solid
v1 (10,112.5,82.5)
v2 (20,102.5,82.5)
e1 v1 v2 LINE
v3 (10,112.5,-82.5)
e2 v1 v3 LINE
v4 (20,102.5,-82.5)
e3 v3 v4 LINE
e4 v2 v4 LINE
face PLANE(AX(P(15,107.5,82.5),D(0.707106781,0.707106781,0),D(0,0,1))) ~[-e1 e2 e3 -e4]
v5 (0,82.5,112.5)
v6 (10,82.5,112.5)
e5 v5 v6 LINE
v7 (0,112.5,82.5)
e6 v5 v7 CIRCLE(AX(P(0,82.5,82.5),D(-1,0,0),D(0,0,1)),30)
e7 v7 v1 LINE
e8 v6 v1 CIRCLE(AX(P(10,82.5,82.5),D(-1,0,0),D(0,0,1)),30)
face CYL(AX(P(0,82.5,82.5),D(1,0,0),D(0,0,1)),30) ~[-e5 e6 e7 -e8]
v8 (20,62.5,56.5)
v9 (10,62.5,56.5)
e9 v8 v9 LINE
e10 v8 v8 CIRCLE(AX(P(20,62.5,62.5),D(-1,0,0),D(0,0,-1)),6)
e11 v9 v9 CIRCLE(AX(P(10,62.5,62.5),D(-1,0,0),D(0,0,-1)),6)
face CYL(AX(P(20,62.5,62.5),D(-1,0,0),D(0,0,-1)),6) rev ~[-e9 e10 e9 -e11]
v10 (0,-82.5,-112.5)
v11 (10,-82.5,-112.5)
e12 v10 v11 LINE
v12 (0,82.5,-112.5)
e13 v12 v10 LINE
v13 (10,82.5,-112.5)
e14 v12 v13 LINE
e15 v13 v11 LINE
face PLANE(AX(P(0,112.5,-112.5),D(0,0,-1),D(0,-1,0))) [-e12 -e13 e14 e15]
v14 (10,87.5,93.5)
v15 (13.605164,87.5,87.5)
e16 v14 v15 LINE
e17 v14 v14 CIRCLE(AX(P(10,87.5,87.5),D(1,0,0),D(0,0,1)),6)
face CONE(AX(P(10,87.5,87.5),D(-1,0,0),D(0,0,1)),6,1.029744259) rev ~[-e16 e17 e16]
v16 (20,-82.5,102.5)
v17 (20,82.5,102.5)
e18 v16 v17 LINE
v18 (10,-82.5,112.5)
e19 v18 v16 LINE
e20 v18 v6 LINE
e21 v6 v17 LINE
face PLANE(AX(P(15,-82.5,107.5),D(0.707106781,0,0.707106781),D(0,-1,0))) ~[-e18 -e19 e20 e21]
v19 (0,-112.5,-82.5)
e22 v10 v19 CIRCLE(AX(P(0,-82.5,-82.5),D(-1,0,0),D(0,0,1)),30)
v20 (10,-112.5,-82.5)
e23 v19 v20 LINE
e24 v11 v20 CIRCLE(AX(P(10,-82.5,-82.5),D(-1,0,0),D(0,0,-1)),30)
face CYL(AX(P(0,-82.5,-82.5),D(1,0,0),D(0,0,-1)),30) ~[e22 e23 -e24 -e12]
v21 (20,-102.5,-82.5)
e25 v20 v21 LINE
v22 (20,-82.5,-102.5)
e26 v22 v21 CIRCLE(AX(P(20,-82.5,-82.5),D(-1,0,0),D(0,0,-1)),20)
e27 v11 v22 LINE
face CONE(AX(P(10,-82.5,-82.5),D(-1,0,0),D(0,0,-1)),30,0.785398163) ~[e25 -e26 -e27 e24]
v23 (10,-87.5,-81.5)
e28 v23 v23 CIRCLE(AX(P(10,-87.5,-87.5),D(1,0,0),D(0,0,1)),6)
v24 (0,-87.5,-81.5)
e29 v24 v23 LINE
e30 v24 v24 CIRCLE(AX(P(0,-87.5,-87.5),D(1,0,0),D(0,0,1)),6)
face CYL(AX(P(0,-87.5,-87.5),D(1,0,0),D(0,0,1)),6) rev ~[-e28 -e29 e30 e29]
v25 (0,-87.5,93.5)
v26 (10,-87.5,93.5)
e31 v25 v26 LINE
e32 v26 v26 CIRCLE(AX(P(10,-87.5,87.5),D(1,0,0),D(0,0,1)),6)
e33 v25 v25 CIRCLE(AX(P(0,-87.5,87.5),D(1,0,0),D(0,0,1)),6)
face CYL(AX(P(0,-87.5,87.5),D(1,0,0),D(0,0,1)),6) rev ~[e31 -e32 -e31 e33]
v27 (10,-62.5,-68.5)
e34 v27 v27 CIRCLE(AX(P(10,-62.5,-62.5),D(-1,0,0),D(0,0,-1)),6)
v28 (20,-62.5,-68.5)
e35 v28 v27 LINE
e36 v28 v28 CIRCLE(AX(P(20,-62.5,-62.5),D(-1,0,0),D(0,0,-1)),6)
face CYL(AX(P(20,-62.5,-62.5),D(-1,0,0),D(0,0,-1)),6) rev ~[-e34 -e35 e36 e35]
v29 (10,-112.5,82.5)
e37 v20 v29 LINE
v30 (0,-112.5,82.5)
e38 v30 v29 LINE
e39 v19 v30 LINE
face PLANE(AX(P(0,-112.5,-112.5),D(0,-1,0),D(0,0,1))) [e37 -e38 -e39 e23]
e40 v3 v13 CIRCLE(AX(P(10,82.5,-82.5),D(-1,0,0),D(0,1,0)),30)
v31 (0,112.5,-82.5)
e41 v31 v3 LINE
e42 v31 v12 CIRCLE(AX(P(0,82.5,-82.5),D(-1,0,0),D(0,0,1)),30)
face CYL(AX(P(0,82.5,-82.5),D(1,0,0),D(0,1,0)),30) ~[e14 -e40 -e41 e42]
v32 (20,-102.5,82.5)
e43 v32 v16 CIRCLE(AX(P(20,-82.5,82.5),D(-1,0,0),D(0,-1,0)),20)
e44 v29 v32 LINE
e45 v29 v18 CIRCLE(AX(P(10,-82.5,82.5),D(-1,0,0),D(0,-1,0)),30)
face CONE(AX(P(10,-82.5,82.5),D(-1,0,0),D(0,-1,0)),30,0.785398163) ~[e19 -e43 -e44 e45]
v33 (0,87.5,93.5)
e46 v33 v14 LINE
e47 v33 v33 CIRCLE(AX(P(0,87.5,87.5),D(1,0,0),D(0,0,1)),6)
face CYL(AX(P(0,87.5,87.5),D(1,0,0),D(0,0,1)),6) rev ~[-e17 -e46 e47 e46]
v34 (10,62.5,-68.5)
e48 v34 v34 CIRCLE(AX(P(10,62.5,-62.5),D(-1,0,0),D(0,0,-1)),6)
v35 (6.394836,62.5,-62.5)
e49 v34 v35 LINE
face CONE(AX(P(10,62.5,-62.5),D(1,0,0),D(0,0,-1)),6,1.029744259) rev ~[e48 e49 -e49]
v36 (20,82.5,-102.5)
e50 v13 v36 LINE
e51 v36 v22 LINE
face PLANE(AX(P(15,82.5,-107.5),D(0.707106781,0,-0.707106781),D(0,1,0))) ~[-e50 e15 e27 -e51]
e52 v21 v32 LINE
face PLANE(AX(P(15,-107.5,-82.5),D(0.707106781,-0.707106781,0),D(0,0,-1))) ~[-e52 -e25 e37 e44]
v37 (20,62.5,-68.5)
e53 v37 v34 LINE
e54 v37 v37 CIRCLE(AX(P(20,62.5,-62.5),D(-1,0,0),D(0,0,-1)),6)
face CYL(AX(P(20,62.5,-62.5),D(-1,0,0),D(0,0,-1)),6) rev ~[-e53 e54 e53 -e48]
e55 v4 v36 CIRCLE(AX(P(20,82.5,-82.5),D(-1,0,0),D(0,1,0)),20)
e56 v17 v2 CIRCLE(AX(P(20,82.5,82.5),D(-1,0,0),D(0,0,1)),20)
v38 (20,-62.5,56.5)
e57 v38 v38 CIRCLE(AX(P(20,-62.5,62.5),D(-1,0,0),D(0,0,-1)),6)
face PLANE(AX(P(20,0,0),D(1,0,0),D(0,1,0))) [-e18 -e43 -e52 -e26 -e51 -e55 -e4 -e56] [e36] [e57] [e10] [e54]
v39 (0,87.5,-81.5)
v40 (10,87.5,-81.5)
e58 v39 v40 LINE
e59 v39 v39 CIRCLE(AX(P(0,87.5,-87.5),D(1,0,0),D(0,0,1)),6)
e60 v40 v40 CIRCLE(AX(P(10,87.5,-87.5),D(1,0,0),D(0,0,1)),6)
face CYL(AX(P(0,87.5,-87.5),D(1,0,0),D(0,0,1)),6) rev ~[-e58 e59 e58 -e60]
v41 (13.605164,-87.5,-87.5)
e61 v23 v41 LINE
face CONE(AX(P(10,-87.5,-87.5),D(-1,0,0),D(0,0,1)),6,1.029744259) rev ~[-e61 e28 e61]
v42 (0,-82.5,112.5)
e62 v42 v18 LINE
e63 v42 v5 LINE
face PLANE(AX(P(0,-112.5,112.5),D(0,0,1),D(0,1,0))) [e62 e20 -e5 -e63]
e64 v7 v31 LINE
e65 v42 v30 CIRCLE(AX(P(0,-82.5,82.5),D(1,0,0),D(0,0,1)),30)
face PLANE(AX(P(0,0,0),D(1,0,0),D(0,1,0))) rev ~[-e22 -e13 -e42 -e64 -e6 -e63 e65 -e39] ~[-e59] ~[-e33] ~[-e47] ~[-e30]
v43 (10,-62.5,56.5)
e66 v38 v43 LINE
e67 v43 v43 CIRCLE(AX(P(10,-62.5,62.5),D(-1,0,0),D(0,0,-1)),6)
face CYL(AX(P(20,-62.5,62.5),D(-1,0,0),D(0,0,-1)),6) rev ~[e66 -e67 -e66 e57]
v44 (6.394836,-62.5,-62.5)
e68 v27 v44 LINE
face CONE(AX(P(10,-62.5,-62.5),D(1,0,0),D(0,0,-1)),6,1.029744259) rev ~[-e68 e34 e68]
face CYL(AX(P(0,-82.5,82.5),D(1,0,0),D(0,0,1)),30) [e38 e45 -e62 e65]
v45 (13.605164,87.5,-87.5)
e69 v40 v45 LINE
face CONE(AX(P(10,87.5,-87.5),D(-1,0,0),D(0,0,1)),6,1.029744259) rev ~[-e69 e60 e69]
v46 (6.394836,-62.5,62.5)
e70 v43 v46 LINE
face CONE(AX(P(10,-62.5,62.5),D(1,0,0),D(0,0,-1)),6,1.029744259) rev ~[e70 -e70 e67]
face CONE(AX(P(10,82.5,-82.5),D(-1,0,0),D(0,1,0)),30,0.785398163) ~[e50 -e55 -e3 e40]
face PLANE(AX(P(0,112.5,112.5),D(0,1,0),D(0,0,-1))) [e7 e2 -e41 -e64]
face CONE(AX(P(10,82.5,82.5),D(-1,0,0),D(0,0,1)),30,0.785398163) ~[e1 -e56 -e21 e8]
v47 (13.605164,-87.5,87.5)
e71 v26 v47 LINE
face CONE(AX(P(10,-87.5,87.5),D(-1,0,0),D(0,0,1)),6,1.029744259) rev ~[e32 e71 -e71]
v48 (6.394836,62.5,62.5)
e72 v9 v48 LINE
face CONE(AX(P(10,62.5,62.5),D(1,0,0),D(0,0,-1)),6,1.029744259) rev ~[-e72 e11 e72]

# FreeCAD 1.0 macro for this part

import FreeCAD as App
import Part
import Sketcher
Q = App.Units.Quantity


def edges_at(feature, points):
    """Names of the edges that pass closest to the given points."""
    edges = feature.Shape.Edges
    near = lambda p: min(range(len(edges)), key=lambda i: edges[i].distToShape(Part.Vertex(*p))[0])
    return sorted({f"Edge{near(p) + 1}" for p in points})


def add_polygon(sketch, points):
    """Adds a closed chain of lines whose ends are joined by coincident constraints."""
    first, n = sketch.GeometryCount, len(points)
    for a, b in zip(points, points[1:] + points[:1]):
        sketch.addGeometry(Part.LineSegment(App.Vector(*a, 0), App.Vector(*b, 0)), False)
    for i in range(n):
        sketch.addConstraint(Sketcher.Constraint("Coincident", first + i, 2, first + (i + 1) % n, 1))

doc = App.newDocument("Part")
body = doc.addObject("PartDesign::Body", "Body")

# Sketch on YZ plane
sketch1 = doc.addObject("Sketcher::SketchObject", "Sketch")
body.addObject(sketch1)
sketch1.AttachmentSupport = (doc.YZ_Plane, [""])
sketch1.MapMode = "FlatFace"
add_polygon(sketch1, [(112.5, 112.5), (-112.5, 112.5), (-112.5, -112.5), (112.5, -112.5)])  # lines 0-3
sketch1.addConstraint(Sketcher.Constraint("Horizontal", 0))
sketch1.addConstraint(Sketcher.Constraint("Vertical", 1))
sketch1.addConstraint(Sketcher.Constraint("Horizontal", 2))
sketch1.addConstraint(Sketcher.Constraint("Vertical", 3))
sketch1.addConstraint(Sketcher.Constraint("Symmetric", 0, 2, 2, 2, -1, 1))
sketch1.addConstraint(Sketcher.Constraint("Equal", 2, 1))
sketch1.addConstraint(Sketcher.Constraint("DistanceX", 0, 2, 0, 1, Q("225 mm")))
pad1 = doc.addObject("PartDesign::Pad", "Pad")
body.addObject(pad1)
pad1.Profile = sketch1
pad1.Length = 20
doc.recompute()

fillet = doc.addObject("PartDesign::Fillet", "Fillet")
body.addObject(fillet)
fillet.Base = (pad1, edges_at(pad1, [
    (10, 112.5, 112.5),
    (10, -112.5, 112.5),
    (10, 112.5, -112.5),
    (10, -112.5, -112.5),
]))
fillet.Radius = 30
doc.recompute()

chamfer = doc.addObject("PartDesign::Chamfer", "Chamfer")
body.addObject(chamfer)
chamfer.Base = (fillet, edges_at(fillet, [
    (20, 0, 112.5),
    (20, -103.713, 103.713),
    (20, -112.5, 0),
    (20, -103.713, -103.713),
    (20, 0, -112.5),
    (20, 103.713, -103.713),
    (20, 112.5, 0),
    (20, 103.713, 103.713),
]))
chamfer.Size = 10

# Sketch on YZ plane
sketch2 = doc.addObject("Sketcher::SketchObject", "Sketch001")
body.addObject(sketch2)
sketch2.AttachmentSupport = (doc.YZ_Plane, [""])
sketch2.MapMode = "FlatFace"
sketch2.AttachmentOffset = App.Placement(App.Vector(0, 0, 20), App.Rotation())
sketch2.addGeometry(Part.Circle(App.Vector(62.5, 62.5, 0), App.Vector(0, 0, 1), 6), False)
sketch2.addGeometry(Part.Circle(App.Vector(62.5, -62.5, 0), App.Vector(0, 0, 1), 6), False)
sketch2.addGeometry(Part.Circle(App.Vector(-62.5, 62.5, 0), App.Vector(0, 0, 1), 6), False)
sketch2.addGeometry(Part.Circle(App.Vector(-62.5, -62.5, 0), App.Vector(0, 0, 1), 6), False)
sketch2.addConstraint(Sketcher.Constraint("Equal", 0, 1))
sketch2.addConstraint(Sketcher.Constraint("Equal", 1, 2))
sketch2.addConstraint(Sketcher.Constraint("Equal", 2, 3))
sketch2.addConstraint(Sketcher.Constraint("Symmetric", 1, 3, 2, 3, -1, 1))
sketch2.addConstraint(Sketcher.Constraint("Symmetric", 0, 3, 3, 3, -1, 1))
sketch2.addConstraint(Sketcher.Constraint("Symmetric", 0, 3, 2, 3, -2))
sketch2.addConstraint(Sketcher.Constraint("Diameter", 0, Q("12 mm")))
sketch2.addConstraint(Sketcher.Constraint("DistanceY", 1, 3, 0, 3, Q("125 mm")))
sketch2.addConstraint(Sketcher.Constraint("DistanceX", 2, 3, 0, 3, Q("125 mm")))
doc.recompute()
hole = doc.addObject("PartDesign::Hole", "Hole")
body.addObject(hole)
hole.Profile = sketch2
hole.ThreadType = "None"
hole.Diameter = 12
hole.DepthType = "Dimension"
hole.Depth = 10
hole.DrillPoint = "Angled"
hole.DrillPointAngle = 118

# Sketch on YZ plane
sketch3 = doc.addObject("Sketcher::SketchObject", "Sketch002")
body.addObject(sketch3)
sketch3.AttachmentSupport = (doc.YZ_Plane, [""])
sketch3.MapMode = "FlatFace"
sketch3.addGeometry(Part.Circle(App.Vector(-87.5, 87.5, 0), App.Vector(0, 0, 1), 6), False)
sketch3.addGeometry(Part.Circle(App.Vector(-87.5, -87.5, 0), App.Vector(0, 0, 1), 6), False)
sketch3.addGeometry(Part.Circle(App.Vector(87.5, -87.5, 0), App.Vector(0, 0, 1), 6), False)
sketch3.addGeometry(Part.Circle(App.Vector(87.5, 87.5, 0), App.Vector(0, 0, 1), 6), False)
sketch3.addConstraint(Sketcher.Constraint("Equal", 0, 1))
sketch3.addConstraint(Sketcher.Constraint("Equal", 1, 2))
sketch3.addConstraint(Sketcher.Constraint("Equal", 2, 3))
sketch3.addConstraint(Sketcher.Constraint("Symmetric", 0, 3, 2, 3, -1, 1))
sketch3.addConstraint(Sketcher.Constraint("Symmetric", 1, 3, 3, 3, -1, 1))
sketch3.addConstraint(Sketcher.Constraint("Symmetric", 1, 3, 2, 3, -2))
sketch3.addConstraint(Sketcher.Constraint("Diameter", 0, Q("12 mm")))
sketch3.addConstraint(Sketcher.Constraint("DistanceY", 1, 3, 0, 3, Q("175 mm")))
sketch3.addConstraint(Sketcher.Constraint("DistanceX", 1, 3, 2, 3, Q("175 mm")))
doc.recompute()
hole2 = doc.addObject("PartDesign::Hole", "Hole001")
body.addObject(hole2)
hole2.Profile = sketch3
hole2.ThreadType = "None"
hole2.Diameter = 12
hole2.DepthType = "Dimension"
hole2.Depth = 10
hole2.DrillPoint = "Angled"
hole2.DrillPointAngle = 118
hole2.Reversed = True

doc.recompute()
